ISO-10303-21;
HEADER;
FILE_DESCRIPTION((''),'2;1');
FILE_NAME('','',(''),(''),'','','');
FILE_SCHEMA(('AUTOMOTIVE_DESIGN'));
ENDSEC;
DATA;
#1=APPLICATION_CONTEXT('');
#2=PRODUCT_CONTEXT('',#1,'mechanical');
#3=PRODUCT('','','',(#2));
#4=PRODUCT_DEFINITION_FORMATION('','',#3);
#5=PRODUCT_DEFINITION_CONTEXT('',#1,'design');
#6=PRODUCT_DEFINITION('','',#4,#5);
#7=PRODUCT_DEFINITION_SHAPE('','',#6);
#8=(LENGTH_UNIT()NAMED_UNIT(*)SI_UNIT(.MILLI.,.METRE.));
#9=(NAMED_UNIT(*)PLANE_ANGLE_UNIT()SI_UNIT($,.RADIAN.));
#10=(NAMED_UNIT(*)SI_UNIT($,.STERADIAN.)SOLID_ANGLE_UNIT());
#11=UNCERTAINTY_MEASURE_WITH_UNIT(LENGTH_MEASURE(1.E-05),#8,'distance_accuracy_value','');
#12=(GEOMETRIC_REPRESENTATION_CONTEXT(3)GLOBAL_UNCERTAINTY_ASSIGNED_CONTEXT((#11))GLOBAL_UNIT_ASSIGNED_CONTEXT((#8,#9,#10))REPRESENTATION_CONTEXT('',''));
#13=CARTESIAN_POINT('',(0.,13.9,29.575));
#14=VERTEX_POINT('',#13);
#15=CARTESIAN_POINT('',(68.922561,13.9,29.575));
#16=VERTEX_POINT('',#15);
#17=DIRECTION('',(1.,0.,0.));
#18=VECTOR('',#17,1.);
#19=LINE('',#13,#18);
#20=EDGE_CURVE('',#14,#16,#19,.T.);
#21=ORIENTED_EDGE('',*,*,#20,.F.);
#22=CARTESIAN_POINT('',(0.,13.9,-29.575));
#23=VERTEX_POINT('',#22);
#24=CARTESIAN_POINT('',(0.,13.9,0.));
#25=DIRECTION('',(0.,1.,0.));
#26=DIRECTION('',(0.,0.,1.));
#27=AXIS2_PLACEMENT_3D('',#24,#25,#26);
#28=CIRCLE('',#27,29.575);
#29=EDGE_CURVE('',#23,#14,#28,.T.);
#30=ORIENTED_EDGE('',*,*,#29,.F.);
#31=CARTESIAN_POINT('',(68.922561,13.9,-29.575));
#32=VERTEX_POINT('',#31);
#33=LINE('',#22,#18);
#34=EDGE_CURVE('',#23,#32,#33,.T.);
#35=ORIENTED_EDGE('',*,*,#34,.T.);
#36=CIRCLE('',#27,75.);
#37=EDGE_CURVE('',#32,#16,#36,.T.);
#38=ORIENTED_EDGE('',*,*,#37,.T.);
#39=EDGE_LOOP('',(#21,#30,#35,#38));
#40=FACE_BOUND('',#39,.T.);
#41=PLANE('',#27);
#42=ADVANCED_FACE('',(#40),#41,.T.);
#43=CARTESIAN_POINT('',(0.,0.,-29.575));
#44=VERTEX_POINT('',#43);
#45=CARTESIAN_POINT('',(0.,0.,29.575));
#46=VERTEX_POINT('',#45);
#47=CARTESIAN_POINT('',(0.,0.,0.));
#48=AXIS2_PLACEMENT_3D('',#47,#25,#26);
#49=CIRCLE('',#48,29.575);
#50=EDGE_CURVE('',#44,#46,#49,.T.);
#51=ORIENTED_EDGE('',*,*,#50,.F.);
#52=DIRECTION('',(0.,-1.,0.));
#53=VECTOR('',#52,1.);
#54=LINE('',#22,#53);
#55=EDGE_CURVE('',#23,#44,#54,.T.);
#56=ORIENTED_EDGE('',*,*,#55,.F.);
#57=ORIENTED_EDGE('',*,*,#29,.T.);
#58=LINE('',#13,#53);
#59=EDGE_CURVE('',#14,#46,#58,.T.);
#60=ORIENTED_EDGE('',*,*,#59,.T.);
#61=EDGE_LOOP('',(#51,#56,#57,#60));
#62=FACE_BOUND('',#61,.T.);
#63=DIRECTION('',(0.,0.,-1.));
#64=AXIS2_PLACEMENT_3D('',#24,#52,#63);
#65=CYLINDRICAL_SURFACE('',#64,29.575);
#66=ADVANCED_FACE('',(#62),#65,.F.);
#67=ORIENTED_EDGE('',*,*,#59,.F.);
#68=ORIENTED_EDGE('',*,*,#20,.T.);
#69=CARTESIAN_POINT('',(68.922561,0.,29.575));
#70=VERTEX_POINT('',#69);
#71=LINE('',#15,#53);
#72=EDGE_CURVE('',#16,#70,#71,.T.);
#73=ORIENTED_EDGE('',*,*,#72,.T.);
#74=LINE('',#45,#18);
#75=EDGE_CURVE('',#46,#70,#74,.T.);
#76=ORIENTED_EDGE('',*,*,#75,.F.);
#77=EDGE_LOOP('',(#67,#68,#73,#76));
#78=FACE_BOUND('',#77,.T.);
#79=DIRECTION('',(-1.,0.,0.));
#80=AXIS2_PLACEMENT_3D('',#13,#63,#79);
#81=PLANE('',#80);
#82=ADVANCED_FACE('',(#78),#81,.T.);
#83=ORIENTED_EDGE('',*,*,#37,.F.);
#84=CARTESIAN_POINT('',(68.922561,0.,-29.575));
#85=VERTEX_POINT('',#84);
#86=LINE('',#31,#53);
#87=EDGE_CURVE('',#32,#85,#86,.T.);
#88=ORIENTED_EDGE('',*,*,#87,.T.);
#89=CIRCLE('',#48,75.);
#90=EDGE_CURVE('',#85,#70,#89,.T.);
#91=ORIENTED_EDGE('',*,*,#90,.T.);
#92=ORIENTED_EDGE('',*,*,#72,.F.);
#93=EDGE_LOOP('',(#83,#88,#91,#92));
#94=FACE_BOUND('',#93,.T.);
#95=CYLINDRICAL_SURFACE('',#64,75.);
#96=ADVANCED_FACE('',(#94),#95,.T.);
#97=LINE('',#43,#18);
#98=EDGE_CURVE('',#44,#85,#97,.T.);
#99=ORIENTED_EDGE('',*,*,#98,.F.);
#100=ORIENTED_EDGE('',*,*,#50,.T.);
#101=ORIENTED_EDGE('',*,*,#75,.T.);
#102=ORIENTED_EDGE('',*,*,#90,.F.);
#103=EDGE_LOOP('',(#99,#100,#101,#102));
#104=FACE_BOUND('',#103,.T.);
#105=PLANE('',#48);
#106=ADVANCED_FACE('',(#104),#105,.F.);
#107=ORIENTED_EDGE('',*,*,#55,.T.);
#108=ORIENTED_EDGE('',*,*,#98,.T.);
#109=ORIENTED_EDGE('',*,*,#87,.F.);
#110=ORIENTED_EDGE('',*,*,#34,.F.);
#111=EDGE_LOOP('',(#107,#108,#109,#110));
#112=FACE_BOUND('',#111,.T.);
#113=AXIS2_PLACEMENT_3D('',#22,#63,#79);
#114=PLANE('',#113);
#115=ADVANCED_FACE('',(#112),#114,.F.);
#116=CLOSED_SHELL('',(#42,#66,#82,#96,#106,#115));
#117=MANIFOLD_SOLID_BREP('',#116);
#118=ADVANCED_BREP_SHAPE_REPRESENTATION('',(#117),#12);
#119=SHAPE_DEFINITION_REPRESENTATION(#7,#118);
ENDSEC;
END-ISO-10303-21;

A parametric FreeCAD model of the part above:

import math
import FreeCAD as App
import Part
import Sketcher

doc = App.newDocument("Part")
body = doc.addObject("PartDesign::Body", "Body")

# Sketch on XZ plane
sketch1 = doc.addObject("Sketcher::SketchObject", "Sketch")
body.addObject(sketch1)
sketch1.AttachmentSupport = (doc.XZ_Plane, [""])
sketch1.MapMode = "FlatFace"
sketch1.addGeometry([
    Part.LineSegment(App.Vector(0, -30, 0), App.Vector(69, -30, 0)),
    Part.ArcOfCircle(Part.Circle(App.Vector(0, 0, 0), App.Vector(0, 0, 1), 75), math.radians(23), math.radians(337)),
    Part.LineSegment(App.Vector(69, 30, 0), App.Vector(0, 30, 0)),
    Part.ArcOfCircle(Part.Circle(App.Vector(0, 0, 0), App.Vector(0, 0, 1), 30), math.radians(90), math.radians(270)),
], False)
sketch1.addConstraint([
    Sketcher.Constraint("Coincident", 0, 2, 1, 2),
    Sketcher.Constraint("Coincident", 1, 1, 2, 1),
    Sketcher.Constraint("Tangent", 2, 2, 3, 1),
    Sketcher.Constraint("Tangent", 3, 2, 0, 1),
    Sketcher.Constraint("Horizontal", 0),
    Sketcher.Constraint("Horizontal", 2),
    Sketcher.Constraint("Coincident", 1, 3, -1, 1),
    Sketcher.Constraint("Coincident", 3, 3, -1, 1),
    Sketcher.Constraint("Radius", 1, 75.0),
    Sketcher.Constraint("Radius", 3, 29.575),
])
pad1 = doc.addObject("PartDesign::Pad", "Pad")
body.addObject(pad1)
pad1.Profile = sketch1
pad1.Length = 13.9
pad1.Reversed = True

doc.recompute()
